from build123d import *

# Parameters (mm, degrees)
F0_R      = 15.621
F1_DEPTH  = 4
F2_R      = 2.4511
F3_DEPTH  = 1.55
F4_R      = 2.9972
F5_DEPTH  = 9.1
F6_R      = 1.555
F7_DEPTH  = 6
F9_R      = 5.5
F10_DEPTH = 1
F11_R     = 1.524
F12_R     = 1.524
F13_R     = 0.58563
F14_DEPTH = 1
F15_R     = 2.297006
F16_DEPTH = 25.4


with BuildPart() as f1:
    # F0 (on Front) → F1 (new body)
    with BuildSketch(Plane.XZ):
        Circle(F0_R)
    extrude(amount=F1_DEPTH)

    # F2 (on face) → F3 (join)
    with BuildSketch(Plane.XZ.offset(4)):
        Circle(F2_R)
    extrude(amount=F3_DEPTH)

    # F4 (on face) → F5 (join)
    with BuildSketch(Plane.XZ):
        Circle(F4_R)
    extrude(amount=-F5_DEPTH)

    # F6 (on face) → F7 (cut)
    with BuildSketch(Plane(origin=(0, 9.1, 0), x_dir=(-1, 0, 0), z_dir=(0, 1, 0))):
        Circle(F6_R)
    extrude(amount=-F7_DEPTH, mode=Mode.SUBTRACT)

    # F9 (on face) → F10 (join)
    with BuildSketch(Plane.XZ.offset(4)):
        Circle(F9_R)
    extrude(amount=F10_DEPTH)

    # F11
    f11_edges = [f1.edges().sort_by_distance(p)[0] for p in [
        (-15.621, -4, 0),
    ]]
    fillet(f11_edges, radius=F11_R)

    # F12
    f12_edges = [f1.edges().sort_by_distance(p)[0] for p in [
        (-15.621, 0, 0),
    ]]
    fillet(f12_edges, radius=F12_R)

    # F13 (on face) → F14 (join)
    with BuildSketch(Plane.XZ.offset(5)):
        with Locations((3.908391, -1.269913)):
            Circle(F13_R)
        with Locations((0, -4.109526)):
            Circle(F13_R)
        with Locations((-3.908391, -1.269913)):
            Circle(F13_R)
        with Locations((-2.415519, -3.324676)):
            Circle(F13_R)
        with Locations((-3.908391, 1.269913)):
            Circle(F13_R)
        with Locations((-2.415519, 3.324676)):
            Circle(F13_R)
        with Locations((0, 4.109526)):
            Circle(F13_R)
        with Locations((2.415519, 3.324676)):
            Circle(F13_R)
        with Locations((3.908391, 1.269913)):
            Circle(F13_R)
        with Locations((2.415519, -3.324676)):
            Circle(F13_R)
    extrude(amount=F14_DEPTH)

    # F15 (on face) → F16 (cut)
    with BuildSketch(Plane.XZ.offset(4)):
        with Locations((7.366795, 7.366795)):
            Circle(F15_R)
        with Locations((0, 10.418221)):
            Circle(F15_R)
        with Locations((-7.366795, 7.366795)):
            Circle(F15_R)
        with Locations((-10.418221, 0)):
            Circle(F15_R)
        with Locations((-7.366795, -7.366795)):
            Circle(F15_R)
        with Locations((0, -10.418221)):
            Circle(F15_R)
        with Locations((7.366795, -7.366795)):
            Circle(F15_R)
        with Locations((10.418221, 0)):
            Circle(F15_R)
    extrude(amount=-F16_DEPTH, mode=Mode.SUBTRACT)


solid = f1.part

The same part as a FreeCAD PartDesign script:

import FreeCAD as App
import Part
import Sketcher
from FreeCAD import Vector
Q = App.Units.Quantity


def edges_at(feature, points):
    """Names of the edges that pass closest to the given points."""
    edges = feature.Shape.Edges
    near = lambda p: min(range(len(edges)), key=lambda i: edges[i].distToShape(Part.Vertex(*p))[0])
    return sorted({f"Edge{near(p) + 1}" for p in points})

doc = App.newDocument("Part")
body = doc.addObject("PartDesign::Body", "Body")

# Sketch on XZ plane
sketch1 = body.newObject("Sketcher::SketchObject", "Sketch")
sketch1.AttachmentSupport = (doc.getObject("XZ_Plane"), [""])
sketch1.MapMode = "FlatFace"
sketch1.addGeometry(Part.Circle(Vector(0, 0, 0), Vector(0, 0, 1), 16), False)
sketch1.addConstraint([
    Sketcher.Constraint("Coincident", 0, 3, -1, 1),
    Sketcher.Constraint("Diameter", 0, Q("31.242 mm")),
])
pad1 = body.newObject("PartDesign::Pad", "Pad")
pad1.Profile = sketch1
pad1.Length = 4

# Sketch on XZ plane
sketch2 = body.newObject("Sketcher::SketchObject", "Sketch001")
sketch2.AttachmentSupport = (doc.getObject("XZ_Plane"), [""])
sketch2.MapMode = "FlatFace"
sketch2.AttachmentOffset = App.Placement(Vector(0, 0, 4), App.Rotation())
sketch2.addGeometry(Part.Circle(Vector(0, 0, 0), Vector(0, 0, 1), 2.5), False)
sketch2.addConstraint([
    Sketcher.Constraint("Coincident", 0, 3, -1, 1),
    Sketcher.Constraint("Diameter", 0, Q("4.9022 mm")),
])
pad2 = body.newObject("PartDesign::Pad", "Pad001")
pad2.Profile = sketch2
pad2.Length = 1.55

# Sketch on XZ plane
sketch3 = body.newObject("Sketcher::SketchObject", "Sketch002")
sketch3.AttachmentSupport = (doc.getObject("XZ_Plane"), [""])
sketch3.MapMode = "FlatFace"
sketch3.addGeometry(Part.Circle(Vector(0, 0, 0), Vector(0, 0, 1), 3), False)
sketch3.addConstraint([
    Sketcher.Constraint("Coincident", 0, 3, -1, 1),
    Sketcher.Constraint("Diameter", 0, Q("5.9944 mm")),
])
pad3 = body.newObject("PartDesign::Pad", "Pad002")
pad3.Profile = sketch3
pad3.Length = 9.1
pad3.Reversed = True

# Sketch on XZ plane
sketch4 = body.newObject("Sketcher::SketchObject", "Sketch003")
sketch4.AttachmentSupport = (doc.getObject("XZ_Plane"), [""])
sketch4.MapMode = "FlatFace"
sketch4.AttachmentOffset = App.Placement(Vector(0, 0, -9.1), App.Rotation())
sketch4.addGeometry(Part.Circle(Vector(0, 0, 0), Vector(0, 0, 1), 1.6), False)
sketch4.addConstraint([
    Sketcher.Constraint("Coincident", 0, 3, -1, 1),
    Sketcher.Constraint("Diameter", 0, Q("3.11 mm")),
])
pocket1 = body.newObject("PartDesign::Pocket", "Pocket")
pocket1.Profile = sketch4
pocket1.Length = 6
pocket1.Reversed = True

# Sketch on XZ plane
sketch5 = body.newObject("Sketcher::SketchObject", "Sketch004")
sketch5.AttachmentSupport = (doc.getObject("XZ_Plane"), [""])
sketch5.MapMode = "FlatFace"
sketch5.AttachmentOffset = App.Placement(Vector(0, 0, 4), App.Rotation())
sketch5.addGeometry(Part.Circle(Vector(0, 0, 0), Vector(0, 0, 1), 6), False)
sketch5.addConstraint([
    Sketcher.Constraint("Coincident", 0, 3, -1, 1),
    Sketcher.Constraint("Diameter", 0, Q("11 mm")),
])
pad4 = body.newObject("PartDesign::Pad", "Pad003")
pad4.Profile = sketch5
pad4.Length = 1
doc.recompute()

fillet = body.newObject("PartDesign::Fillet", "Fillet")
fillet.Base = (pad4, edges_at(pad4, [(-15.621, -4, 0)]))
fillet.Radius = 1.524
doc.recompute()

fillet2 = body.newObject("PartDesign::Fillet", "Fillet001")
fillet2.Base = (fillet, edges_at(fillet, [(-15.621, 0, 0)]))
fillet2.Radius = 1.524

# Sketch on XZ plane
sketch6 = body.newObject("Sketcher::SketchObject", "Sketch005")
sketch6.AttachmentSupport = (doc.getObject("XZ_Plane"), [""])
sketch6.MapMode = "FlatFace"
sketch6.AttachmentOffset = App.Placement(Vector(0, 0, 5), App.Rotation())
sketch6.addGeometry([
    Part.Circle(Vector(3.9, -1.3, 0), Vector(0, 0, 1), 0.6),  # 0
    Part.Circle(Vector(0, -4.1, 0), Vector(0, 0, 1), 0.6),  # 1
    Part.Circle(Vector(-3.9, -1.3, 0), Vector(0, 0, 1), 0.6),  # 2
    Part.Circle(Vector(-2.4, -3.3, 0), Vector(0, 0, 1), 0.6),  # 3
    Part.Circle(Vector(-3.9, 1.3, 0), Vector(0, 0, 1), 0.6),  # 4
    Part.Circle(Vector(-2.4, 3.3, 0), Vector(0, 0, 1), 0.6),  # 5
    Part.Circle(Vector(0, 4.1, 0), Vector(0, 0, 1), 0.6),  # 6
    Part.Circle(Vector(2.4, 3.3, 0), Vector(0, 0, 1), 0.6),  # 7
    Part.Circle(Vector(3.9, 1.3, 0), Vector(0, 0, 1), 0.6),  # 8
    Part.Circle(Vector(2.4, -3.3, 0), Vector(0, 0, 1), 0.6),  # 9
], False)
sketch6.addConstraint([
    Sketcher.Constraint("Equal", 0, 1),
    Sketcher.Constraint("Equal", 1, 2),
    Sketcher.Constraint("Equal", 2, 3),
    Sketcher.Constraint("Equal", 3, 4),
    Sketcher.Constraint("Equal", 4, 5),
    Sketcher.Constraint("Equal", 5, 6),
    Sketcher.Constraint("Equal", 6, 7),
    Sketcher.Constraint("Equal", 7, 8),
    Sketcher.Constraint("Equal", 8, 9),
    Sketcher.Constraint("Symmetric", 0, 3, 4, 3, -1, 1),
    Sketcher.Constraint("Symmetric", 1, 3, 6, 3, -1, 1),
    Sketcher.Constraint("Symmetric", 3, 3, 7, 3, -1, 1),
    Sketcher.Constraint("Symmetric", 2, 3, 8, 3, -1, 1),
    Sketcher.Constraint("Symmetric", 5, 3, 9, 3, -1, 1),
    Sketcher.Constraint("Symmetric", 0, 3, 2, 3, -2),
    Sketcher.Constraint("Symmetric", 5, 3, 7, 3, -2),
    Sketcher.Constraint("PointOnObject", 1, 3, -2),
    Sketcher.Constraint("Diameter", 0, Q("1.17126 mm")),
    Sketcher.Constraint("DistanceX", -1, 1, 0, 3, Q("3.908391 mm")),
    Sketcher.Constraint("DistanceX", 3, 3, -1, 1, Q("2.415519 mm")),
    Sketcher.Constraint("DistanceY", 1, 3, 3, 3, Q("0.78485 mm")),
    Sketcher.Constraint("DistanceY", 3, 3, 4, 3, Q("4.594589 mm")),
    Sketcher.Constraint("DistanceY", 0, 3, -1, 1, Q("1.269913 mm")),
])
pad5 = body.newObject("PartDesign::Pad", "Pad004")
pad5.Profile = sketch6
pad5.Length = 1

# Sketch on XZ plane
sketch7 = body.newObject("Sketcher::SketchObject", "Sketch006")
sketch7.AttachmentSupport = (doc.getObject("XZ_Plane"), [""])
sketch7.MapMode = "FlatFace"
sketch7.AttachmentOffset = App.Placement(Vector(0, 0, 4), App.Rotation())
sketch7.addGeometry([
    Part.Circle(Vector(7.4, 7.4, 0), Vector(0, 0, 1), 2.3),  # 0
    Part.Circle(Vector(0, 10.4, 0), Vector(0, 0, 1), 2.3),  # 1
    Part.Circle(Vector(-7.4, 7.4, 0), Vector(0, 0, 1), 2.3),  # 2
    Part.Circle(Vector(-10.4, 0, 0), Vector(0, 0, 1), 2.3),  # 3
    Part.Circle(Vector(-7.4, -7.4, 0), Vector(0, 0, 1), 2.3),  # 4
    Part.Circle(Vector(0, -10.4, 0), Vector(0, 0, 1), 2.3),  # 5
    Part.Circle(Vector(7.4, -7.4, 0), Vector(0, 0, 1), 2.3),  # 6
    Part.Circle(Vector(10.4, 0, 0), Vector(0, 0, 1), 2.3),  # 7
], False)
sketch7.addConstraint([
    Sketcher.Constraint("Equal", 0, 1),
    Sketcher.Constraint("Equal", 1, 2),
    Sketcher.Constraint("Equal", 2, 3),
    Sketcher.Constraint("Equal", 3, 4),
    Sketcher.Constraint("Equal", 4, 5),
    Sketcher.Constraint("Equal", 5, 6),
    Sketcher.Constraint("Equal", 6, 7),
    Sketcher.Constraint("Symmetric", 0, 3, 4, 3, -1, 1),
    Sketcher.Constraint("Symmetric", 1, 3, 5, 3, -1, 1),
    Sketcher.Constraint("Symmetric", 2, 3, 6, 3, -1, 1),
    Sketcher.Constraint("Symmetric", 3, 3, 7, 3, -1, 1),
    Sketcher.Constraint("Symmetric", 0, 3, 2, 3, -2),
    Sketcher.Constraint("PointOnObject", 1, 3, -2),
    Sketcher.Constraint("PointOnObject", 3, 3, -1),
    Sketcher.Constraint("Diameter", 0, Q("4.594012 mm")),
    Sketcher.Constraint("DistanceY", -1, 1, 1, 3, Q("10.418221 mm")),
    Sketcher.Constraint("DistanceX", 3, 3, -1, 1, Q("10.418221 mm")),
    Sketcher.Constraint("DistanceX", 2, 3, 0, 3, Q("14.73359 mm")),
    Sketcher.Constraint("DistanceY", 4, 3, 2, 3, Q("14.73359 mm")),
])
pocket2 = body.newObject("PartDesign::Pocket", "Pocket001")
pocket2.Profile = sketch7
pocket2.Length = 25.4

doc.recompute()
